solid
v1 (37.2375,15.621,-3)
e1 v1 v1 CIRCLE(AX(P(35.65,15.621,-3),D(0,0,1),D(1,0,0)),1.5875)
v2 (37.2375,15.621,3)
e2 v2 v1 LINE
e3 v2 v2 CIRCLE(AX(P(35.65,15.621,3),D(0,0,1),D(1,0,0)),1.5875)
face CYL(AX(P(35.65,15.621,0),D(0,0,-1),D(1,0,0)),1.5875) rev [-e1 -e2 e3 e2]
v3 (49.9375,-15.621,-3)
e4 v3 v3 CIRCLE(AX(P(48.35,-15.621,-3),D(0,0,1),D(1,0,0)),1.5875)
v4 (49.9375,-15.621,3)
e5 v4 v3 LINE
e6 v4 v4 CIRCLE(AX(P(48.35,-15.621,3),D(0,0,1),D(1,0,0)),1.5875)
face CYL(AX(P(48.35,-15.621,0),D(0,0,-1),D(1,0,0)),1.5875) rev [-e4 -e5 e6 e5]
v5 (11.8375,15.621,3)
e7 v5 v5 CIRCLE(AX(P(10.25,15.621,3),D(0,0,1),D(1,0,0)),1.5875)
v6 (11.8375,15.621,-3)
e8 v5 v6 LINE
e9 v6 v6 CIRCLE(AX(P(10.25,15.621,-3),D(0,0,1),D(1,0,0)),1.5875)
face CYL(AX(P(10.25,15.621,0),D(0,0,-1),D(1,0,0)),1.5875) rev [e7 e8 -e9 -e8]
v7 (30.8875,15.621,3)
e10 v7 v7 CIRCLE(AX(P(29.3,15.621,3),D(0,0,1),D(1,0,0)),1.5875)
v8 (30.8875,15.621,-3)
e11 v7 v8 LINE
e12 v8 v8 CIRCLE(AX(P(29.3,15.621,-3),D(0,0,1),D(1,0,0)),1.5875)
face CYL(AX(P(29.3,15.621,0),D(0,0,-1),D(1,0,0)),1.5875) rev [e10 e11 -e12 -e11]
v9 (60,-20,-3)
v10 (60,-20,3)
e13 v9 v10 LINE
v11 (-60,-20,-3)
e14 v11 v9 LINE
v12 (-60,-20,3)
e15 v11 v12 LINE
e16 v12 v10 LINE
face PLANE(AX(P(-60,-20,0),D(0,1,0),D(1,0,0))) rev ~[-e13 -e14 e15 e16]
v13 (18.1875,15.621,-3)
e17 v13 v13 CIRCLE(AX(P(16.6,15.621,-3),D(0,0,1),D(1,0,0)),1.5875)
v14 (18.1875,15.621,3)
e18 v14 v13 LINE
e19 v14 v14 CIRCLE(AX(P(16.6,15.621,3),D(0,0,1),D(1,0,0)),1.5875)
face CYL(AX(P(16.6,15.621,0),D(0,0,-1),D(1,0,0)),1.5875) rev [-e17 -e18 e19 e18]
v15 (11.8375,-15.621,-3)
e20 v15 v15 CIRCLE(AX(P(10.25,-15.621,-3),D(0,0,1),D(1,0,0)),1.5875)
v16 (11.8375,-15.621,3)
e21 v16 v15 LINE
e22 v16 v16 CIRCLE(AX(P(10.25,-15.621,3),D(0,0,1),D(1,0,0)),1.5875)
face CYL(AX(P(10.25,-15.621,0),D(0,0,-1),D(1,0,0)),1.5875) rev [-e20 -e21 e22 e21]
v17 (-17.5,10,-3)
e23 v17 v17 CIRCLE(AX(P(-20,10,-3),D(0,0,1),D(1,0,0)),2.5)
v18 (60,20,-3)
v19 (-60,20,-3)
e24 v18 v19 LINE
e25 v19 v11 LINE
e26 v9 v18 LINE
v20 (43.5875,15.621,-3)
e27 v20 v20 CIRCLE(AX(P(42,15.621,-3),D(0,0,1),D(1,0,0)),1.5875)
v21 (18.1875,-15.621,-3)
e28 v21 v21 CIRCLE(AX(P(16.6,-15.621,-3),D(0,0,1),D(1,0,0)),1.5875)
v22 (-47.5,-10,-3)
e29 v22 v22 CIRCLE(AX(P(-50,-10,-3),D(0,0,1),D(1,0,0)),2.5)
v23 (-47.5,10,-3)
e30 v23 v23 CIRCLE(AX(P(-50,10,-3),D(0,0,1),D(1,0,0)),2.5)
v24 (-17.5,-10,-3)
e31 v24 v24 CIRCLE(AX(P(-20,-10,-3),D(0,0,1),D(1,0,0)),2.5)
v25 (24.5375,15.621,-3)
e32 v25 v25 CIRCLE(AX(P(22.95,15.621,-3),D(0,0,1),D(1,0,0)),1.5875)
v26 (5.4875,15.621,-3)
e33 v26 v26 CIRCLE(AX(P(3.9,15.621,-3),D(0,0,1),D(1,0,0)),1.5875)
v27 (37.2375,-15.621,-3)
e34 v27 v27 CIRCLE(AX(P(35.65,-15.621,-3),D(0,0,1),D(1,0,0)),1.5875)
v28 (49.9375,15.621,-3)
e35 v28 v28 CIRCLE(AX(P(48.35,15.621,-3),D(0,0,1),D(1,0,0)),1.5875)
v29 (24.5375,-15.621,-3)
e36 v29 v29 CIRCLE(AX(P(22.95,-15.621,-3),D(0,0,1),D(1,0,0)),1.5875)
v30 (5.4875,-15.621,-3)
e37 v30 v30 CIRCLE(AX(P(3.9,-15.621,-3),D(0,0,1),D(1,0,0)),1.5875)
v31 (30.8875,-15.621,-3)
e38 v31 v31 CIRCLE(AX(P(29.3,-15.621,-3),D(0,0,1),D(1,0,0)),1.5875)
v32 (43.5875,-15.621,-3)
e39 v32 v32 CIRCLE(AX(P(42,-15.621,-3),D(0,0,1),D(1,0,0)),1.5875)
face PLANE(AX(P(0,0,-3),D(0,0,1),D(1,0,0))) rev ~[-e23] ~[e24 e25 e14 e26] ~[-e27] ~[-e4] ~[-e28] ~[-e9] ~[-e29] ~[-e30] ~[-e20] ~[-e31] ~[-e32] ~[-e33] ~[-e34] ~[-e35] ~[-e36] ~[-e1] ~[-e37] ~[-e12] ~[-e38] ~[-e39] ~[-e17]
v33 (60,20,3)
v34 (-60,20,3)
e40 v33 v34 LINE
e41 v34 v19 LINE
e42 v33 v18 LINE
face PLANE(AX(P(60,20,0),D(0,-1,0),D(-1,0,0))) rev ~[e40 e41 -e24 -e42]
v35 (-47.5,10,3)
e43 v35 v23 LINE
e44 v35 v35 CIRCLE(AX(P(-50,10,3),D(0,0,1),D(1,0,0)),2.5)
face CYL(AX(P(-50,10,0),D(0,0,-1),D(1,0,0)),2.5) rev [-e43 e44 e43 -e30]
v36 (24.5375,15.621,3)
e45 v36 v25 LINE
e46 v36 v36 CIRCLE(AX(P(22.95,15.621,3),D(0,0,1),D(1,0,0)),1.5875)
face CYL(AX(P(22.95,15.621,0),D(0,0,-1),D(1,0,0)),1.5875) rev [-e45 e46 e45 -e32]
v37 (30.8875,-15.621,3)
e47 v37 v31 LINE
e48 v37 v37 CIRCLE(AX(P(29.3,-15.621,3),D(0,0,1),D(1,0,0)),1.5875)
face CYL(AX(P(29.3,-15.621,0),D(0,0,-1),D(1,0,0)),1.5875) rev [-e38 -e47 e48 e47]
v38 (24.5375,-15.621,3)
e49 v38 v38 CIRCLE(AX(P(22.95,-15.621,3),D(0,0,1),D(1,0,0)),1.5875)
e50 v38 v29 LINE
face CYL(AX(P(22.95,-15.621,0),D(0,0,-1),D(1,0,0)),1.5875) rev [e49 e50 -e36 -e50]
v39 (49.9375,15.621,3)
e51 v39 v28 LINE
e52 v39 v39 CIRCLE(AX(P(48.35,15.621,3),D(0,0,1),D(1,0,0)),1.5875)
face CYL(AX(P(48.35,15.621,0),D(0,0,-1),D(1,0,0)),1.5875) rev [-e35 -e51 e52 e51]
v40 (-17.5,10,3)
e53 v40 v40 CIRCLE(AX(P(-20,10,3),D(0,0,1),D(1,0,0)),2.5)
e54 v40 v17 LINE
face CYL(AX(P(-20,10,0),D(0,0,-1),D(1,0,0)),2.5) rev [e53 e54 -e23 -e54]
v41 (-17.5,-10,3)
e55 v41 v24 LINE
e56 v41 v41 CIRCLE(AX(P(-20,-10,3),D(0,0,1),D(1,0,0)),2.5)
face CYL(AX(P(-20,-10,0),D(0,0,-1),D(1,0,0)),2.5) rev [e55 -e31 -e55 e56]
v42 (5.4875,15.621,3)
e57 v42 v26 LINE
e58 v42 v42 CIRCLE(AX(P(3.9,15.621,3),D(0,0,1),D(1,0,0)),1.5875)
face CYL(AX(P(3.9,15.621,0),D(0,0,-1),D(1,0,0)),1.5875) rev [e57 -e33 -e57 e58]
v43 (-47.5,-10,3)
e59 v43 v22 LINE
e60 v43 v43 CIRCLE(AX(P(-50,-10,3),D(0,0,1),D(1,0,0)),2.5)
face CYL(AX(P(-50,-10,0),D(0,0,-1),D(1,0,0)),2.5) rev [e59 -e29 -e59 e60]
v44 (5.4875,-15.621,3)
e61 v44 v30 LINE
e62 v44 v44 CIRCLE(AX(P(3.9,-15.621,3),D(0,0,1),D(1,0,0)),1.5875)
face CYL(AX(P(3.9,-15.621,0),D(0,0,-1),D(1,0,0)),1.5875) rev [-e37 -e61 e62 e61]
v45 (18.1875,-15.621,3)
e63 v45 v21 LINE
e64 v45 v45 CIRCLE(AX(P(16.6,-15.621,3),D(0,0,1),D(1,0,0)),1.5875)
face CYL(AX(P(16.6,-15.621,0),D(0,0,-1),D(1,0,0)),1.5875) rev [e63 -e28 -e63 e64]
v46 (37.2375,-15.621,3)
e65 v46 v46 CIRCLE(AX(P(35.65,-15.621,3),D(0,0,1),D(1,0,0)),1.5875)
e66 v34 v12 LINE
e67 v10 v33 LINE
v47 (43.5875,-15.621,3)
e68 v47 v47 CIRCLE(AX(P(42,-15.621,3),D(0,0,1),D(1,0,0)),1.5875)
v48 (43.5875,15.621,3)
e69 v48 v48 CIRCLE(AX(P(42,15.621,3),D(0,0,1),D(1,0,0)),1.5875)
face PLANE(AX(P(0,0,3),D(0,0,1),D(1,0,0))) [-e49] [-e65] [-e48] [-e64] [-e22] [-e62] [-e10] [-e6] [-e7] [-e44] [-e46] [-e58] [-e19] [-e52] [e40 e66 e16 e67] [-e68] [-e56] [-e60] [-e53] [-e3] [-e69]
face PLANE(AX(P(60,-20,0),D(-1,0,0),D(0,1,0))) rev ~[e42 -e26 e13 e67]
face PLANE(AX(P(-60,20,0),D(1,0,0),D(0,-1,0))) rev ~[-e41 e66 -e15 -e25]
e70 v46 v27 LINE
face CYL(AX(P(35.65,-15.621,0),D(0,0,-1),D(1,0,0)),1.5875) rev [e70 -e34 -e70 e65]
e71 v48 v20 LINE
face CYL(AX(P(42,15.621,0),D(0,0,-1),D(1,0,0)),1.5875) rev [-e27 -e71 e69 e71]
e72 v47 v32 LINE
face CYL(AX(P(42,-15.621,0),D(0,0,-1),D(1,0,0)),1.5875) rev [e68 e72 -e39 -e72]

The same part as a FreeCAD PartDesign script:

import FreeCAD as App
import Part
import Sketcher

V = App.Vector
Q = App.Units.Quantity


def add_polygon(sketch, points):
    """Adds a closed chain of lines whose ends are joined by coincident constraints."""
    first, n = sketch.GeometryCount, len(points)
    for a, b in zip(points, points[1:] + points[:1]):
        sketch.addGeometry(Part.LineSegment(App.Vector(*a, 0), App.Vector(*b, 0)), False)
    for i in range(n):
        sketch.addConstraint(Sketcher.Constraint("Coincident", first + i, 2, first + (i + 1) % n, 1))

doc = App.newDocument("Part")
body = doc.addObject("PartDesign::Body", "Body")

sketch1 = doc.addObject("Sketcher::SketchObject", "Sketch")
body.addObject(sketch1)
sketch1.AttachmentSupport = (doc.XY_Plane, [""])
sketch1.MapMode = "FlatFace"
add_polygon(sketch1, [(-60, 20), (-60, -20), (60, -20), (60, 20)])
sketch1.addGeometry(Part.Circle(V(-50, -10, 0), V(0, 0, 1), 2.5), False)
sketch1.addGeometry(Part.Circle(V(-20, -10, 0), V(0, 0, 1), 2.5), False)
sketch1.addGeometry(Part.Circle(V(3.9, -15.6, 0), V(0, 0, 1), 1.6), False)
sketch1.addGeometry(Part.Circle(V(10.2, -15.6, 0), V(0, 0, 1), 1.6), False)
sketch1.addGeometry(Part.Circle(V(16.6, -15.6, 0), V(0, 0, 1), 1.6), False)
sketch1.addGeometry(Part.Circle(V(22.9, -15.6, 0), V(0, 0, 1), 1.6), False)
sketch1.addGeometry(Part.Circle(V(29.3, -15.6, 0), V(0, 0, 1), 1.6), False)
sketch1.addGeometry(Part.Circle(V(35.6, -15.6, 0), V(0, 0, 1), 1.6), False)
sketch1.addGeometry(Part.Circle(V(42, -15.6, 0), V(0, 0, 1), 1.6), False)
sketch1.addGeometry(Part.Circle(V(48.4, -15.6, 0), V(0, 0, 1), 1.6), False)
sketch1.addGeometry(Part.Circle(V(-50, 10, 0), V(0, 0, 1), 2.5), False)
sketch1.addGeometry(Part.Circle(V(-20, 10, 0), V(0, 0, 1), 2.5), False)
sketch1.addGeometry(Part.Circle(V(3.9, 15.6, 0), V(0, 0, 1), 1.6), False)
sketch1.addGeometry(Part.Circle(V(10.2, 15.6, 0), V(0, 0, 1), 1.6), False)
sketch1.addGeometry(Part.Circle(V(16.6, 15.6, 0), V(0, 0, 1), 1.6), False)
sketch1.addGeometry(Part.Circle(V(22.9, 15.6, 0), V(0, 0, 1), 1.6), False)
sketch1.addGeometry(Part.Circle(V(29.3, 15.6, 0), V(0, 0, 1), 1.6), False)
sketch1.addGeometry(Part.Circle(V(35.6, 15.6, 0), V(0, 0, 1), 1.6), False)
sketch1.addGeometry(Part.Circle(V(42, 15.6, 0), V(0, 0, 1), 1.6), False)
sketch1.addGeometry(Part.Circle(V(48.4, 15.6, 0), V(0, 0, 1), 1.6), False)
sketch1.addConstraint(Sketcher.Constraint("Vertical", 0))
sketch1.addConstraint(Sketcher.Constraint("Horizontal", 1))
sketch1.addConstraint(Sketcher.Constraint("Vertical", 2))
sketch1.addConstraint(Sketcher.Constraint("Horizontal", 3))
sketch1.addConstraint(Sketcher.Constraint("Equal", 4, 5))
sketch1.addConstraint(Sketcher.Constraint("Equal", 6, 7))
sketch1.addConstraint(Sketcher.Constraint("Equal", 7, 8))
sketch1.addConstraint(Sketcher.Constraint("Equal", 8, 9))
sketch1.addConstraint(Sketcher.Constraint("Equal", 9, 10))
sketch1.addConstraint(Sketcher.Constraint("Equal", 10, 11))
sketch1.addConstraint(Sketcher.Constraint("Equal", 11, 12))
sketch1.addConstraint(Sketcher.Constraint("Equal", 12, 13))
sketch1.addConstraint(Sketcher.Constraint("Equal", 5, 14))
sketch1.addConstraint(Sketcher.Constraint("Equal", 14, 15))
sketch1.addConstraint(Sketcher.Constraint("Equal", 13, 16))
sketch1.addConstraint(Sketcher.Constraint("Equal", 16, 17))
sketch1.addConstraint(Sketcher.Constraint("Equal", 17, 18))
sketch1.addConstraint(Sketcher.Constraint("Equal", 18, 19))
sketch1.addConstraint(Sketcher.Constraint("Equal", 19, 20))
sketch1.addConstraint(Sketcher.Constraint("Equal", 20, 21))
sketch1.addConstraint(Sketcher.Constraint("Equal", 21, 22))
sketch1.addConstraint(Sketcher.Constraint("Equal", 22, 23))
sketch1.addConstraint(Sketcher.Constraint("Symmetric", 0, 2, 2, 2, -1, 1))
sketch1.addConstraint(Sketcher.Constraint("Symmetric", 4, 3, 14, 3, -1))
sketch1.addConstraint(Sketcher.Constraint("Symmetric", 5, 3, 15, 3, -1))
sketch1.addConstraint(Sketcher.Constraint("Symmetric", 6, 3, 16, 3, -1))
sketch1.addConstraint(Sketcher.Constraint("Symmetric", 7, 3, 17, 3, -1))
sketch1.addConstraint(Sketcher.Constraint("Symmetric", 8, 3, 18, 3, -1))
sketch1.addConstraint(Sketcher.Constraint("Symmetric", 9, 3, 19, 3, -1))
sketch1.addConstraint(Sketcher.Constraint("Symmetric", 10, 3, 20, 3, -1))
sketch1.addConstraint(Sketcher.Constraint("Symmetric", 11, 3, 21, 3, -1))
sketch1.addConstraint(Sketcher.Constraint("Symmetric", 12, 3, 22, 3, -1))
sketch1.addConstraint(Sketcher.Constraint("Symmetric", 13, 3, 23, 3, -1))
sketch1.addConstraint(Sketcher.Constraint("Horizontal", 4, 3, 5, 3))
sketch1.addConstraint(Sketcher.Constraint("Horizontal", 6, 3, 7, 3))
sketch1.addConstraint(Sketcher.Constraint("Horizontal", 7, 3, 8, 3))
sketch1.addConstraint(Sketcher.Constraint("Horizontal", 8, 3, 9, 3))
sketch1.addConstraint(Sketcher.Constraint("Horizontal", 9, 3, 10, 3))
sketch1.addConstraint(Sketcher.Constraint("Horizontal", 10, 3, 11, 3))
sketch1.addConstraint(Sketcher.Constraint("Horizontal", 11, 3, 12, 3))
sketch1.addConstraint(Sketcher.Constraint("Horizontal", 12, 3, 13, 3))
sketch1.addConstraint(Sketcher.Constraint("Diameter", 4, Q("5 mm")))
sketch1.addConstraint(Sketcher.Constraint("DistanceX", 1, 1, 1, 2, Q("120 mm")))
sketch1.addConstraint(Sketcher.Constraint("DistanceY", 0, 2, 0, 1, Q("40 mm")))
sketch1.addConstraint(Sketcher.Constraint("Diameter", 6, Q("3.175 mm")))
sketch1.addConstraint(Sketcher.Constraint("DistanceY", 4, 3, -1, 1, Q("10 mm")))
sketch1.addConstraint(Sketcher.Constraint("DistanceX", 4, 3, 5, 3, Q("30 mm")))
sketch1.addConstraint(Sketcher.Constraint("DistanceX", 0, 2, 4, 3, Q("10 mm")))
sketch1.addConstraint(Sketcher.Constraint("DistanceX", 12, 3, 1, 2, Q("18 mm")))
sketch1.addConstraint(Sketcher.Constraint("DistanceX", 6, 3, 7, 3, Q("6.35 mm")))
sketch1.addConstraint(Sketcher.Constraint("DistanceX", 7, 3, 8, 3, Q("6.35 mm")))
sketch1.addConstraint(Sketcher.Constraint("DistanceX", 8, 3, 9, 3, Q("6.35 mm")))
sketch1.addConstraint(Sketcher.Constraint("DistanceX", 9, 3, 10, 3, Q("6.35 mm")))
sketch1.addConstraint(Sketcher.Constraint("DistanceX", 10, 3, 11, 3, Q("6.35 mm")))
sketch1.addConstraint(Sketcher.Constraint("DistanceX", 11, 3, 12, 3, Q("6.35 mm")))
sketch1.addConstraint(Sketcher.Constraint("DistanceX", 12, 3, 13, 3, Q("6.35 mm")))
sketch1.addConstraint(Sketcher.Constraint("DistanceY", 6, 3, 16, 3, Q("31.242 mm")))
pad1 = doc.addObject("PartDesign::Pad", "Pad")
body.addObject(pad1)
pad1.Profile = sketch1
pad1.Length = 6
pad1.Midplane = True

doc.recompute()
